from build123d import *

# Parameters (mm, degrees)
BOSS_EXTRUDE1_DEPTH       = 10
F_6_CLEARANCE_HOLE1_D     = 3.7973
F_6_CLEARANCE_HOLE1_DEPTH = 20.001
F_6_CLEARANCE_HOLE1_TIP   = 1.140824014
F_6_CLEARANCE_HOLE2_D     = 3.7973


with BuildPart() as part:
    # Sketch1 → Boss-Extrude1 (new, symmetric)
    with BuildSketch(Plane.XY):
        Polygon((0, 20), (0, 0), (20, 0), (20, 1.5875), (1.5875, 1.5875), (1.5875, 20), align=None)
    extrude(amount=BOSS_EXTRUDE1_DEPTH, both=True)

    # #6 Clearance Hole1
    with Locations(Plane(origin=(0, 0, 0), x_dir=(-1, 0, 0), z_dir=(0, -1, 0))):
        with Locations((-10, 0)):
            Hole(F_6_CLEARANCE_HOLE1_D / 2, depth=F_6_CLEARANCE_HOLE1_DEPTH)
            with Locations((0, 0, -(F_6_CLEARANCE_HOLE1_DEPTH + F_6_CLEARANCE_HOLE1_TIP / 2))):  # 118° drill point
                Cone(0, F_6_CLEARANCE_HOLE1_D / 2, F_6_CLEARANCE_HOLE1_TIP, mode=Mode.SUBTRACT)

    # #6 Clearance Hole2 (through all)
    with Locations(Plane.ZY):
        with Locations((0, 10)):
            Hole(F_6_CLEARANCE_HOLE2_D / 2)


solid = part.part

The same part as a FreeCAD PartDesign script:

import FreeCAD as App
import Part
import Sketcher

doc = App.newDocument("Part")
body = doc.addObject("PartDesign::Body", "Body")

# Sketch on XY plane
sketch1 = body.newObject("Sketcher::SketchObject", "Sketch")
sketch1.AttachmentSupport = (doc.getObject("XY_Plane"), [""])
sketch1.MapMode = "FlatFace"
sketch1.addGeometry(Part.LineSegment(App.Vector(0, 20, 0), App.Vector(0, 0, 0)), False)
sketch1.addGeometry(Part.LineSegment(App.Vector(0, 0, 0), App.Vector(20, 0, 0)), False)
sketch1.addGeometry(Part.LineSegment(App.Vector(20, 0, 0), App.Vector(20, 1.5875, 0)), False)
sketch1.addGeometry(Part.LineSegment(App.Vector(20, 1.5875, 0), App.Vector(1.5875, 1.5875, 0)), False)
sketch1.addGeometry(Part.LineSegment(App.Vector(1.5875, 1.5875, 0), App.Vector(1.5875, 20, 0)), False)
sketch1.addGeometry(Part.LineSegment(App.Vector(1.5875, 20, 0), App.Vector(0, 20, 0)), False)
sketch1.addConstraint(Sketcher.Constraint("Coincident", 0, 2, 1, 1))
sketch1.addConstraint(Sketcher.Constraint("Coincident", 1, 2, 2, 1))
sketch1.addConstraint(Sketcher.Constraint("Coincident", 2, 2, 3, 1))
sketch1.addConstraint(Sketcher.Constraint("Coincident", 3, 2, 4, 1))
sketch1.addConstraint(Sketcher.Constraint("Coincident", 4, 2, 5, 1))
sketch1.addConstraint(Sketcher.Constraint("Coincident", 5, 2, 0, 1))
sketch1.addConstraint(Sketcher.Constraint("Vertical", 0))
sketch1.addConstraint(Sketcher.Constraint("Horizontal", 1))
sketch1.addConstraint(Sketcher.Constraint("Vertical", 2))
sketch1.addConstraint(Sketcher.Constraint("Horizontal", 3))
sketch1.addConstraint(Sketcher.Constraint("Vertical", 4))
sketch1.addConstraint(Sketcher.Constraint("Horizontal", 5))
sketch1.addConstraint(Sketcher.Constraint("Coincident", 0, 2, -1, 1))
sketch1.addConstraint(Sketcher.Constraint("Equal", 1, 0))
sketch1.addConstraint(Sketcher.Constraint("Equal", 5, 2))
sketch1.addConstraint(Sketcher.Constraint("DistanceX", 1, 1, 1, 2, 20.0))
sketch1.addConstraint(Sketcher.Constraint("DistanceX", 3, 2, 3, 1, 18.4125))
pad1 = body.newObject("PartDesign::Pad", "Pad")
pad1.Profile = sketch1
pad1.Length = 20
pad1.Midplane = True

# Sketch on XZ plane
sketch2 = body.newObject("Sketcher::SketchObject", "Sketch001")
sketch2.AttachmentSupport = (doc.getObject("XZ_Plane"), [""])
sketch2.MapMode = "FlatFace"
sketch2.addGeometry(Part.Circle(App.Vector(10, 0, 0), App.Vector(0, 0, 1), 1.89865), False)
sketch2.addConstraint(Sketcher.Constraint("PointOnObject", 0, 3, -1))
sketch2.addConstraint(Sketcher.Constraint("DistanceX", -1, 1, 0, 3, 10.0))
sketch2.addConstraint(Sketcher.Constraint("Diameter", 0, 3.7973))
doc.recompute()
hole = body.newObject("PartDesign::Hole", "Hole")
hole.Profile = sketch2
hole.ThreadType = "None"
hole.Diameter = 3.7973
hole.DepthType = "Dimension"
hole.Depth = 20.001
hole.DrillPoint = "Angled"
hole.DrillPointAngle = 118

# Sketch on YZ plane
sketch3 = body.newObject("Sketcher::SketchObject", "Sketch002")
sketch3.AttachmentSupport = (doc.getObject("YZ_Plane"), [""])
sketch3.MapMode = "FlatFace"
sketch3.addGeometry(Part.Circle(App.Vector(10, 0, 0), App.Vector(0, 0, 1), 1.89865), False)
sketch3.addConstraint(Sketcher.Constraint("PointOnObject", 0, 3, -1))
sketch3.addConstraint(Sketcher.Constraint("DistanceX", -1, 1, 0, 3, 10.0))
sketch3.addConstraint(Sketcher.Constraint("Diameter", 0, 3.7973))
doc.recompute()
hole2 = body.newObject("PartDesign::Hole", "Hole001")
hole2.Profile = sketch3
hole2.ThreadType = "None"
hole2.Diameter = 3.7973
hole2.DepthType = "ThroughAll"
hole2.Reversed = True

doc.recompute()
